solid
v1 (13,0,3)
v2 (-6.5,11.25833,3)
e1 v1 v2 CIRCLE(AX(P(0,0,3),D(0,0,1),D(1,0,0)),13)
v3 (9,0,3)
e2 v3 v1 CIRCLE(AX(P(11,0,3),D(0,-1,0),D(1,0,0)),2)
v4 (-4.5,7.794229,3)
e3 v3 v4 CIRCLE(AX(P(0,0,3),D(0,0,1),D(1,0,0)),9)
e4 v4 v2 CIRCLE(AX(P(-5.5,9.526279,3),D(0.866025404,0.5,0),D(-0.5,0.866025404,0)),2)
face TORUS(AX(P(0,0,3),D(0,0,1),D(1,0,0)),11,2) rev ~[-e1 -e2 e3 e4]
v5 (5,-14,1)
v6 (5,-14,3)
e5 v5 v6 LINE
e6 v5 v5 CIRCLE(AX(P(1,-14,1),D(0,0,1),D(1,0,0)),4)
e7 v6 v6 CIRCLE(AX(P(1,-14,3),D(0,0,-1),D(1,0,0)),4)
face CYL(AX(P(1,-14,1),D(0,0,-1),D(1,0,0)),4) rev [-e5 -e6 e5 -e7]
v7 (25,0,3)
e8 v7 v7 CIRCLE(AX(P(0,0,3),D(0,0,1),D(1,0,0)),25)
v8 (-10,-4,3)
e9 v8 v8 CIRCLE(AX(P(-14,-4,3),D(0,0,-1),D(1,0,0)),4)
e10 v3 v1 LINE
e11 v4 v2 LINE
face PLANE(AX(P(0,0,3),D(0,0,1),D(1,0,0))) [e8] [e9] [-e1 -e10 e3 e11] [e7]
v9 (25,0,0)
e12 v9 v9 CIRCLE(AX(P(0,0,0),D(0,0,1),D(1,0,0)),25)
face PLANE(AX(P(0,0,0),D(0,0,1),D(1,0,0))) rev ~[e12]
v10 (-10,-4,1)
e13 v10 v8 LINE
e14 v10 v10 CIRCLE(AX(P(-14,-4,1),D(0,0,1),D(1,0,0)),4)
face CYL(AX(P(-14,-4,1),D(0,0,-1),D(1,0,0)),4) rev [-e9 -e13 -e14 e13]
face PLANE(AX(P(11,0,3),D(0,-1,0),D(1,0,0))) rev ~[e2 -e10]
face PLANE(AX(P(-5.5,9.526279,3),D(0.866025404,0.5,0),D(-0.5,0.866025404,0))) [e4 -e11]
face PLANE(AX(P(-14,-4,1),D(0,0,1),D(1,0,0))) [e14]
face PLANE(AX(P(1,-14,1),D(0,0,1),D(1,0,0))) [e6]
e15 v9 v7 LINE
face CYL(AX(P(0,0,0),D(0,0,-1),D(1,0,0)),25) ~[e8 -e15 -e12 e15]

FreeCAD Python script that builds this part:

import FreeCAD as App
import Part
import Sketcher

doc = App.newDocument("Part")
params = doc.addObject("Spreadsheet::Sheet", "Params")
for row, (alias, value) in enumerate([
    ("sketch1_diameter", "8 mm"),
    ("pad1_length", "10 mm"),
    ("sketch2_diameter", "8 mm"),
    ("pad2_length", "10 mm"),
    ("sketch3_diameter", "4 mm"),
    ("revolution_angle", "120 deg"),
    ("sketch4_diameter", "50 mm"),
    ("pad3_length", "3 mm"),
], start=1):
    params.set(f"A{row}", alias)
    params.set(f"B{row}", "=" + value)
    params.setAlias(f"B{row}", alias)

body = doc.addObject("PartDesign::Body", "Body")

sketch1 = body.newObject("Sketcher::SketchObject", "Sketch")
sketch1.AttachmentSupport = (doc.getObject("XY_Plane"), [""])
sketch1.MapMode = "FlatFace"
sketch1.AttachmentOffset = App.Placement(App.Vector(0, 0, 1), App.Rotation())
sketch1.addGeometry(Part.Circle(App.Vector(1, -14, 0), App.Vector(0, 0, 1), 4), False)
sketch1.addConstraint([
    Sketcher.Constraint("Diameter", 0, 8.0),
    Sketcher.Constraint("DistanceX", -1, 1, 0, 3, 1.0),
    Sketcher.Constraint("DistanceY", 0, 3, -1, 1, 14.0),
])
sketch1.setExpression("Constraints[0]", "Params.sketch1_diameter")
pad1 = body.newObject("PartDesign::Pad", "Pad")
pad1.Profile = sketch1
pad1.setExpression("Length", "Params.pad1_length")
body2 = doc.addObject("PartDesign::Body", "Body001")

sketch2 = body2.newObject("Sketcher::SketchObject", "Sketch001")
sketch2.AttachmentSupport = (doc.getObject("XY_Plane001"), [""])
sketch2.MapMode = "FlatFace"
sketch2.AttachmentOffset = App.Placement(App.Vector(0, 0, 1), App.Rotation())
sketch2.addGeometry(Part.Circle(App.Vector(-14, -4, 0), App.Vector(0, 0, 1), 4), False)
sketch2.addConstraint([
    Sketcher.Constraint("Diameter", 0, 8.0),
    Sketcher.Constraint("DistanceX", 0, 3, -1, 1, 14.0),
    Sketcher.Constraint("DistanceY", 0, 3, -1, 1, 4.0),
])
sketch2.setExpression("Constraints[0]", "Params.sketch2_diameter")
pad2 = body2.newObject("PartDesign::Pad", "Pad001")
pad2.Profile = sketch2
pad2.setExpression("Length", "Params.pad2_length")
body3 = doc.addObject("PartDesign::Body", "Body002")
body3.AllowCompound = True

sketch3 = body3.newObject("Sketcher::SketchObject", "Sketch002")
sketch3.AttachmentSupport = (doc.getObject("XZ_Plane002"), [""])
sketch3.MapMode = "FlatFace"
sketch3.addGeometry(Part.Circle(App.Vector(11, 3, 0), App.Vector(0, 0, 1), 2), False)
sketch3.addConstraint([
    Sketcher.Constraint("Diameter", 0, 4.0),
    Sketcher.Constraint("DistanceX", -1, 1, 0, 3, 11.0),
    Sketcher.Constraint("DistanceY", -1, 1, 0, 3, 3.0),
])
sketch3.setExpression("Constraints[0]", "Params.sketch3_diameter")
revolution = body3.newObject("PartDesign::Revolution", "Revolution")
revolution.Profile = sketch3
revolution.ReferenceAxis = (sketch3, ["V_Axis"])
revolution.setExpression("Angle", "Params.revolution_angle")
doc.recompute()

boolean = body3.newObject("PartDesign::Boolean", "Boolean")
boolean.Type = "Fuse"
boolean.addObjects([body])
doc.recompute()

boolean2 = body3.newObject("PartDesign::Boolean", "Boolean001")
boolean2.Type = "Fuse"
boolean2.addObjects([body2])
body4 = doc.addObject("PartDesign::Body", "Body003")

sketch4 = body4.newObject("Sketcher::SketchObject", "Sketch003")
sketch4.AttachmentSupport = (doc.getObject("XY_Plane003"), [""])
sketch4.MapMode = "FlatFace"
sketch4.addGeometry(Part.Circle(App.Vector(0, 0, 0), App.Vector(0, 0, 1), 25), False)
sketch4.addConstraint([
    Sketcher.Constraint("Coincident", 0, 3, -1, 1),
    Sketcher.Constraint("Diameter", 0, 50.0),
])
sketch4.setExpression("Constraints[1]", "Params.sketch4_diameter")
pad3 = body4.newObject("PartDesign::Pad", "Pad002")
pad3.Profile = sketch4
pad3.setExpression("Length", "Params.pad3_length")
doc.recompute()

boolean3 = body4.newObject("PartDesign::Boolean", "Boolean002")
boolean3.Type = "Cut"
boolean3.addObjects([body3])

doc.recompute()
